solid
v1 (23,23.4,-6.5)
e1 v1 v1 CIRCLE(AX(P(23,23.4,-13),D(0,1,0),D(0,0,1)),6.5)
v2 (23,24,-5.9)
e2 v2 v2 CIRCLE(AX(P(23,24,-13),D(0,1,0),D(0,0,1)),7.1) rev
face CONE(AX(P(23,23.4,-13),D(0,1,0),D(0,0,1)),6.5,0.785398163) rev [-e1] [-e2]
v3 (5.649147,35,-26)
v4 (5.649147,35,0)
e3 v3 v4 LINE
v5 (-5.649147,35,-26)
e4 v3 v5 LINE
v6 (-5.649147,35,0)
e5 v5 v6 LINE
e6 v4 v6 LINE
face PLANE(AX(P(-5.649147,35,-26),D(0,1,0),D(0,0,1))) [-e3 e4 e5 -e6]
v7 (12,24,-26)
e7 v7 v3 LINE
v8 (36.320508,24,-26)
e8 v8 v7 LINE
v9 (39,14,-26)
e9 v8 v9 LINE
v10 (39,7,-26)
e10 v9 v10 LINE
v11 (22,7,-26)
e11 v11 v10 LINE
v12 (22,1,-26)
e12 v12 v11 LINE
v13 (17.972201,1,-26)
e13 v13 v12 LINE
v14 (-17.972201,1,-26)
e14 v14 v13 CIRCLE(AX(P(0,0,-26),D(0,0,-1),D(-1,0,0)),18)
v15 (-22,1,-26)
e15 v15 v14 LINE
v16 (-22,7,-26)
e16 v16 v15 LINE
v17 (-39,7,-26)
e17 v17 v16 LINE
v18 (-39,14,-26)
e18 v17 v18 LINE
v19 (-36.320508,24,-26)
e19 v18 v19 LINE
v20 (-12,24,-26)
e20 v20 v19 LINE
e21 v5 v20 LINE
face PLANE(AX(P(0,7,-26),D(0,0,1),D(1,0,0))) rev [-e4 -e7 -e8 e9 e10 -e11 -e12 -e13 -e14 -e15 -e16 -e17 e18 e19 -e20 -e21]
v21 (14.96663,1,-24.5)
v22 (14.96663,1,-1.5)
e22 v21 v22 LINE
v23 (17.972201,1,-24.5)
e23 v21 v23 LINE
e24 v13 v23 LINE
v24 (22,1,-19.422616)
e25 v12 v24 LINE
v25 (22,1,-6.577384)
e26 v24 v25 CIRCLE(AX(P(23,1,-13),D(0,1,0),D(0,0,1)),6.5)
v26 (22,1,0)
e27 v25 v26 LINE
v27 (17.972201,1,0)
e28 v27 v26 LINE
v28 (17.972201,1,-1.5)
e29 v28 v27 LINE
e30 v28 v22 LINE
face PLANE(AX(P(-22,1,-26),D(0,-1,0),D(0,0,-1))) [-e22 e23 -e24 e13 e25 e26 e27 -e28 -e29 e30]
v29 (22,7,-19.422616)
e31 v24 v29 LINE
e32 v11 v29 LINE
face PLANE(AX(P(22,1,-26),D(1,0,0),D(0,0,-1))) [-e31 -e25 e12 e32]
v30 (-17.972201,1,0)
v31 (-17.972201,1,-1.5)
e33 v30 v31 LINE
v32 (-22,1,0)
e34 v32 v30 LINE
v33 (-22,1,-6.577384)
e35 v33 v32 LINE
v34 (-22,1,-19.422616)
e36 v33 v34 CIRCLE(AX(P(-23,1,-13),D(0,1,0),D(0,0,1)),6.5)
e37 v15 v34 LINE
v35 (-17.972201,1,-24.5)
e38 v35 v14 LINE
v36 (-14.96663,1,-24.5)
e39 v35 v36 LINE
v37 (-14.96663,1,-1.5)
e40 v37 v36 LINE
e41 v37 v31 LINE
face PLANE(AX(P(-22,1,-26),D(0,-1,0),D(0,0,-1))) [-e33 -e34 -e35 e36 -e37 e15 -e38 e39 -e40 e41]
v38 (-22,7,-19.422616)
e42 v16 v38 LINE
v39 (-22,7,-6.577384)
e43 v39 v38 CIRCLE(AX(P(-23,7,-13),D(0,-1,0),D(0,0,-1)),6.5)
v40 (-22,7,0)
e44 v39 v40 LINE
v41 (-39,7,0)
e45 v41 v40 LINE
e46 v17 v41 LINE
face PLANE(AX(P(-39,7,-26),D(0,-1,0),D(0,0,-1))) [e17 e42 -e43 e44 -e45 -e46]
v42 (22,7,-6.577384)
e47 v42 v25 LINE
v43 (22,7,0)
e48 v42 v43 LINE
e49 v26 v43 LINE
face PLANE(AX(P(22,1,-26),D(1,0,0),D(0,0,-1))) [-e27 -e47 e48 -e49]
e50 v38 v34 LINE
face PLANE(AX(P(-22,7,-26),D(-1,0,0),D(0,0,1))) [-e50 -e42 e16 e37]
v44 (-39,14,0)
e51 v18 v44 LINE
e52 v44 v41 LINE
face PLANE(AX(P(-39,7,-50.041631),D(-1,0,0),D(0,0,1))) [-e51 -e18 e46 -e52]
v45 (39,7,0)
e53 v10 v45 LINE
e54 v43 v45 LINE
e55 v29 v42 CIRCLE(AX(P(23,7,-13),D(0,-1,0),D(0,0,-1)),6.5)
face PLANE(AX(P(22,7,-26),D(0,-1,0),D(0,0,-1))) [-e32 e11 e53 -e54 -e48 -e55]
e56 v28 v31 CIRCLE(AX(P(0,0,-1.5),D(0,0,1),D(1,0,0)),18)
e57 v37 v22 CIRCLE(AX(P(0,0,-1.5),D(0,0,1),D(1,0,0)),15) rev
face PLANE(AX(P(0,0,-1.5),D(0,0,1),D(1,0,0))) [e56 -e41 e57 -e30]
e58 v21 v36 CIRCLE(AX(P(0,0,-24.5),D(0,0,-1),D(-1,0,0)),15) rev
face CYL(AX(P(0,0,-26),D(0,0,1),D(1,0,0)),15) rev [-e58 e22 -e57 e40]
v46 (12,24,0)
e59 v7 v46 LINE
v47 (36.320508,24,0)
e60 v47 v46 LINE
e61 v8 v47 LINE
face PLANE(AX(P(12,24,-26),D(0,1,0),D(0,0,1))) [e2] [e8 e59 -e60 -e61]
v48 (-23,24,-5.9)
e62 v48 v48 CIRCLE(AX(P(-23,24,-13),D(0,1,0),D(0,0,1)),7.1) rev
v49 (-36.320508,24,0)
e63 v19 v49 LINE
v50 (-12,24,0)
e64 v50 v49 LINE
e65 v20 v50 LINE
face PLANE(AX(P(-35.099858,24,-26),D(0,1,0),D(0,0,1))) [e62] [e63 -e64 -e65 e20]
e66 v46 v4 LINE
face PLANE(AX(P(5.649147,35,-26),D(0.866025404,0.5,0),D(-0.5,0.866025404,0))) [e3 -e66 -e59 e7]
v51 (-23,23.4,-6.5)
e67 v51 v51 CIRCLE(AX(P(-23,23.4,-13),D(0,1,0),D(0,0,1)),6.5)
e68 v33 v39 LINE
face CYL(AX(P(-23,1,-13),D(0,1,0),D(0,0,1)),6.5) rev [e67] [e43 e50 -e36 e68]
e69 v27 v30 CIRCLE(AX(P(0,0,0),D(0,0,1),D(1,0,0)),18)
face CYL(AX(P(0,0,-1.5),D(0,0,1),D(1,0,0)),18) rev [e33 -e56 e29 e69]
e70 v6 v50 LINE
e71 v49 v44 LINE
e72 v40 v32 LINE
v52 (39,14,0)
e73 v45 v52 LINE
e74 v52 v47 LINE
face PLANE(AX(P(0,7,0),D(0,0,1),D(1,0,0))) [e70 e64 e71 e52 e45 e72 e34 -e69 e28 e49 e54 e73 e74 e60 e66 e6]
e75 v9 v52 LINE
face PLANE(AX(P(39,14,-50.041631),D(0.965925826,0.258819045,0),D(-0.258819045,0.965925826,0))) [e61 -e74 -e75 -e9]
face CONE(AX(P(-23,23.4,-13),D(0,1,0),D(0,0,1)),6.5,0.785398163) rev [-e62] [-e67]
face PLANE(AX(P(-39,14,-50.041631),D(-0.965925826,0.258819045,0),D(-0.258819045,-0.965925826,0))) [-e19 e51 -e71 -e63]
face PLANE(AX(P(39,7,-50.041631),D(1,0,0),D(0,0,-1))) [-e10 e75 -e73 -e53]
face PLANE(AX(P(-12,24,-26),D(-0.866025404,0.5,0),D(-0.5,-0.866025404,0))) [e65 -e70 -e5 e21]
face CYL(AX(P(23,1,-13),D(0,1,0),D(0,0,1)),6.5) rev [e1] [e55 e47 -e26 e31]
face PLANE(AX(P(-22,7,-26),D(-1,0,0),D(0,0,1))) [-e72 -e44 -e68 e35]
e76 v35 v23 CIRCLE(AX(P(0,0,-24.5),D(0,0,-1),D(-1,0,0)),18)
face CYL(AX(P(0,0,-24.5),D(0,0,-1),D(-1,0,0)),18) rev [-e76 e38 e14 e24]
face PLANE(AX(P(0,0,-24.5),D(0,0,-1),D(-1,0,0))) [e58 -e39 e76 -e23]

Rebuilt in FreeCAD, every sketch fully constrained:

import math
import FreeCAD as App
import Part
import Sketcher
from FreeCAD import Vector
Q = App.Units.Quantity


def edges_at(feature, points):
    """Names of the edges that pass closest to the given points."""
    edges = feature.Shape.Edges
    near = lambda p: min(range(len(edges)), key=lambda i: edges[i].distToShape(Part.Vertex(*p))[0])
    return sorted({f"Edge{near(p) + 1}" for p in points})

doc = App.newDocument("Part")
params = doc.addObject("Spreadsheet::Sheet", "Params")
for row, (alias, value) in enumerate([
    ("sketch1_radius", "39 mm"),
    ("sketch1_width", "17 mm"),
    ("sketch1_height", "6 mm"),
    ("pad1_length", "26 mm"),
    ("sketch2_diameter", "30 mm"),
    ("sketch3_diameter", "36 mm"),
    ("pocket2_length", "1.5 mm"),
    ("sketch4_diameter", "36 mm"),
    ("pocket3_length", "1.5 mm"),
    ("sketch5_width", "17 mm"),
    ("sketch5_height", "7 mm"),
    ("pad2_length", "26 mm"),
    ("sketch6_diameter", "13 mm"),
    ("chamfer_size", "0.6 mm"),
], start=1):
    params.set(f"A{row}", alias)
    params.set(f"B{row}", "=" + value)
    params.setAlias(f"B{row}", alias)

body = doc.addObject("PartDesign::Body", "Body")

# Sketch on XY plane
sketch1 = body.newObject("Sketcher::SketchObject", "Sketch")
sketch1.AttachmentSupport = (doc.getObject("XY_Plane"), [""])
sketch1.MapMode = "FlatFace"
sketch1.addGeometry(Part.LineSegment(Vector(-12, 24, 0), Vector(-35.099858, 24, 0)), False)
sketch1.addGeometry(Part.ArcOfCircle(Part.Circle(Vector(0, 7, 0), Vector(0, 0, 1), 39), math.radians(154.157587), math.radians(180)), False)
sketch1.addGeometry(Part.LineSegment(Vector(-39, 7, 0), Vector(-22, 7, 0)), False)
sketch1.addGeometry(Part.LineSegment(Vector(-22, 7, 0), Vector(-22, 1, 0)), False)
sketch1.addGeometry(Part.LineSegment(Vector(-22, 1, 0), Vector(22, 1, 0)), False)
sketch1.addGeometry(Part.LineSegment(Vector(22, 1, 0), Vector(22, 7, 0)), False)
sketch1.addGeometry(Part.LineSegment(Vector(22, 7, 0), Vector(39, 7, 0)), False)
sketch1.addGeometry(Part.ArcOfCircle(Part.Circle(Vector(0, 7, 0), Vector(0, 0, 1), 39), math.radians(0), math.radians(25.842413)), False)
sketch1.addGeometry(Part.LineSegment(Vector(35.099858, 24, 0), Vector(12, 24, 0)), False)
sketch1.addGeometry(Part.LineSegment(Vector(12, 24, 0), Vector(5.649147, 35, 0)), False)
sketch1.addGeometry(Part.LineSegment(Vector(5.649147, 35, 0), Vector(-5.649147, 35, 0)), False)
sketch1.addGeometry(Part.LineSegment(Vector(-5.649147, 35, 0), Vector(-12, 24, 0)), False)
sketch1.addConstraint(Sketcher.Constraint("Coincident", 0, 2, 1, 1))
sketch1.addConstraint(Sketcher.Constraint("Coincident", 1, 2, 2, 1))
sketch1.addConstraint(Sketcher.Constraint("Coincident", 2, 2, 3, 1))
sketch1.addConstraint(Sketcher.Constraint("Coincident", 3, 2, 4, 1))
sketch1.addConstraint(Sketcher.Constraint("Coincident", 4, 2, 5, 1))
sketch1.addConstraint(Sketcher.Constraint("Coincident", 5, 2, 6, 1))
sketch1.addConstraint(Sketcher.Constraint("Coincident", 6, 2, 7, 1))
sketch1.addConstraint(Sketcher.Constraint("Coincident", 7, 2, 8, 1))
sketch1.addConstraint(Sketcher.Constraint("Coincident", 8, 2, 9, 1))
sketch1.addConstraint(Sketcher.Constraint("Coincident", 9, 2, 10, 1))
sketch1.addConstraint(Sketcher.Constraint("Coincident", 10, 2, 11, 1))
sketch1.addConstraint(Sketcher.Constraint("Coincident", 11, 2, 0, 1))
sketch1.addConstraint(Sketcher.Constraint("Horizontal", 0))
sketch1.addConstraint(Sketcher.Constraint("Horizontal", 2))
sketch1.addConstraint(Sketcher.Constraint("Vertical", 3))
sketch1.addConstraint(Sketcher.Constraint("Horizontal", 4))
sketch1.addConstraint(Sketcher.Constraint("Vertical", 5))
sketch1.addConstraint(Sketcher.Constraint("Horizontal", 6))
sketch1.addConstraint(Sketcher.Constraint("Horizontal", 8))
sketch1.addConstraint(Sketcher.Constraint("Horizontal", 10))
sketch1.addConstraint(Sketcher.Constraint("Coincident", 7, 3, 1, 3))
sketch1.addConstraint(Sketcher.Constraint("Equal", 1, 7))
sketch1.addConstraint(Sketcher.Constraint("Symmetric", 2, 2, 5, 2, -2))
sketch1.addConstraint(Sketcher.Constraint("Symmetric", 0, 2, 7, 2, -2))
sketch1.addConstraint(Sketcher.Constraint("Horizontal", 7, 3, 1, 2))
sketch1.addConstraint(Sketcher.Constraint("Equal", 0, 8))
sketch1.addConstraint(Sketcher.Constraint("Equal", 9, 11))
sketch1.addConstraint(Sketcher.Constraint("Radius", 1, Q("39 mm")))
sketch1.addConstraint(Sketcher.Constraint("DistanceX", 2, 1, 2, 2, Q("17 mm")))
sketch1.addConstraint(Sketcher.Constraint("DistanceY", 3, 2, 3, 1, Q("6 mm")))
sketch1.addConstraint(Sketcher.Constraint("Angle", 9, Q("120 deg")))
sketch1.addConstraint(Sketcher.Constraint("DistanceY", -1, 1, 1, 3, Q("7 mm")))
sketch1.addConstraint(Sketcher.Constraint("DistanceY", -1, 1, 0, 2, Q("24 mm")))
sketch1.addConstraint(Sketcher.Constraint("DistanceX", -1, 1, 8, 2, Q("12 mm")))
sketch1.addConstraint(Sketcher.Constraint("DistanceY", -1, 1, 9, 2, Q("35 mm")))
sketch1.setExpression("Constraints[27]", "Params.sketch1_radius")
sketch1.setExpression("Constraints[28]", "Params.sketch1_width")
sketch1.setExpression("Constraints[29]", "Params.sketch1_height")
pad1 = body.newObject("PartDesign::Pad", "Pad")
pad1.Profile = sketch1
pad1.setExpression("Length", "Params.pad1_length")
pad1.Reversed = True

# Sketch on XY plane
sketch2 = body.newObject("Sketcher::SketchObject", "Sketch001")
sketch2.AttachmentSupport = (doc.getObject("XY_Plane"), [""])
sketch2.MapMode = "FlatFace"
sketch2.addGeometry(Part.Circle(Vector(0, 0, 0), Vector(0, 0, 1), 15), False)
sketch2.addConstraint(Sketcher.Constraint("Coincident", 0, 3, -1, 1))
sketch2.addConstraint(Sketcher.Constraint("Diameter", 0, Q("30 mm")))
sketch2.setExpression("Constraints[1]", "Params.sketch2_diameter")
pocket1 = body.newObject("PartDesign::Pocket", "Pocket")
pocket1.Profile = sketch2
pocket1.Type = "ThroughAll"

# Sketch on XY plane
sketch3 = body.newObject("Sketcher::SketchObject", "Sketch002")
sketch3.AttachmentSupport = (doc.getObject("XY_Plane"), [""])
sketch3.MapMode = "FlatFace"
sketch3.addGeometry(Part.Circle(Vector(0, 0, 0), Vector(0, 0, 1), 18), False)
sketch3.addConstraint(Sketcher.Constraint("Coincident", 0, 3, -1, 1))
sketch3.addConstraint(Sketcher.Constraint("Diameter", 0, Q("36 mm")))
sketch3.setExpression("Constraints[1]", "Params.sketch3_diameter")
pocket2 = body.newObject("PartDesign::Pocket", "Pocket001")
pocket2.Profile = sketch3
pocket2.setExpression("Length", "Params.pocket2_length")

# Sketch on XY plane
sketch4 = body.newObject("Sketcher::SketchObject", "Sketch003")
sketch4.AttachmentSupport = (doc.getObject("XY_Plane"), [""])
sketch4.MapMode = "FlatFace"
sketch4.AttachmentOffset = App.Placement(Vector(0, 0, -24.5), App.Rotation())
sketch4.addGeometry(Part.Circle(Vector(0, 0, 0), Vector(0, 0, 1), 18), False)
sketch4.addConstraint(Sketcher.Constraint("Coincident", 0, 3, -1, 1))
sketch4.addConstraint(Sketcher.Constraint("Diameter", 0, Q("36 mm")))
sketch4.setExpression("Constraints[1]", "Params.sketch4_diameter")
pocket3 = body.newObject("PartDesign::Pocket", "Pocket002")
pocket3.Profile = sketch4
pocket3.setExpression("Length", "Params.pocket3_length")

# Sketch on XY plane
sketch5 = body.newObject("Sketcher::SketchObject", "Sketch004")
sketch5.AttachmentSupport = (doc.getObject("XY_Plane"), [""])
sketch5.MapMode = "FlatFace"
sketch5.addGeometry(Part.LineSegment(Vector(-39, 14, 0), Vector(-39, 7, 0)), False)
sketch5.addGeometry(Part.LineSegment(Vector(-39, 7, 0), Vector(-22, 7, 0)), False)
sketch5.addGeometry(Part.LineSegment(Vector(-22, 7, 0), Vector(-22, 24, 0)), False)
sketch5.addGeometry(Part.LineSegment(Vector(-22, 24, 0), Vector(-36.320508, 24, 0)), False)
sketch5.addGeometry(Part.LineSegment(Vector(-36.320508, 24, 0), Vector(-39, 14, 0)), False)
sketch5.addGeometry(Part.LineSegment(Vector(39, 7, 0), Vector(39, 14, 0)), False)
sketch5.addGeometry(Part.LineSegment(Vector(39, 14, 0), Vector(36.320508, 24, 0)), False)
sketch5.addGeometry(Part.LineSegment(Vector(36.320508, 24, 0), Vector(22, 24, 0)), False)
sketch5.addGeometry(Part.LineSegment(Vector(22, 24, 0), Vector(22, 7, 0)), False)
sketch5.addGeometry(Part.LineSegment(Vector(22, 7, 0), Vector(39, 7, 0)), False)
sketch5.addConstraint(Sketcher.Constraint("Coincident", 0, 2, 1, 1))
sketch5.addConstraint(Sketcher.Constraint("Coincident", 1, 2, 2, 1))
sketch5.addConstraint(Sketcher.Constraint("Coincident", 2, 2, 3, 1))
sketch5.addConstraint(Sketcher.Constraint("Coincident", 3, 2, 4, 1))
sketch5.addConstraint(Sketcher.Constraint("Coincident", 4, 2, 0, 1))
sketch5.addConstraint(Sketcher.Constraint("Coincident", 5, 2, 6, 1))
sketch5.addConstraint(Sketcher.Constraint("Coincident", 6, 2, 7, 1))
sketch5.addConstraint(Sketcher.Constraint("Coincident", 7, 2, 8, 1))
sketch5.addConstraint(Sketcher.Constraint("Coincident", 8, 2, 9, 1))
sketch5.addConstraint(Sketcher.Constraint("Coincident", 9, 2, 5, 1))
sketch5.addConstraint(Sketcher.Constraint("Vertical", 0))
sketch5.addConstraint(Sketcher.Constraint("Horizontal", 1))
sketch5.addConstraint(Sketcher.Constraint("Vertical", 2))
sketch5.addConstraint(Sketcher.Constraint("Horizontal", 3))
sketch5.addConstraint(Sketcher.Constraint("Vertical", 5))
sketch5.addConstraint(Sketcher.Constraint("Horizontal", 7))
sketch5.addConstraint(Sketcher.Constraint("Vertical", 8))
sketch5.addConstraint(Sketcher.Constraint("Horizontal", 9))
sketch5.addConstraint(Sketcher.Constraint("Symmetric", 4, 2, 5, 2, -2))
sketch5.addConstraint(Sketcher.Constraint("Symmetric", 3, 2, 6, 2, -2))
sketch5.addConstraint(Sketcher.Constraint("Symmetric", 1, 2, 8, 2, -2))
sketch5.addConstraint(Sketcher.Constraint("Equal", 9, 2))
sketch5.addConstraint(Sketcher.Constraint("DistanceX", 1, 1, 1, 2, Q("17 mm")))
sketch5.addConstraint(Sketcher.Constraint("DistanceY", 0, 2, 0, 1, Q("7 mm")))
sketch5.addConstraint(Sketcher.Constraint("Angle", 4, Q("-105 deg")))
sketch5.addConstraint(Sketcher.Constraint("DistanceX", 0, 2, -1, 1, Q("39 mm")))
sketch5.addConstraint(Sketcher.Constraint("DistanceY", -1, 1, 0, 2, Q("7 mm")))
sketch5.setExpression("Constraints[22]", "Params.sketch5_width")
sketch5.setExpression("Constraints[23]", "Params.sketch5_height")
pad2 = body.newObject("PartDesign::Pad", "Pad001")
pad2.Profile = sketch5
pad2.setExpression("Length", "Params.pad2_length")
pad2.Reversed = True

# Sketch on XZ plane
sketch6 = body.newObject("Sketcher::SketchObject", "Sketch005")
sketch6.AttachmentSupport = (doc.getObject("XZ_Plane"), [""])
sketch6.MapMode = "FlatFace"
sketch6.AttachmentOffset = App.Placement(Vector(0, 0, -24), App.Rotation())
sketch6.addGeometry(Part.Circle(Vector(-23, -13, 0), Vector(0, 0, 1), 6.5), False)
sketch6.addGeometry(Part.Circle(Vector(23, -13, 0), Vector(0, 0, 1), 6.5), False)
sketch6.addConstraint(Sketcher.Constraint("Equal", 0, 1))
sketch6.addConstraint(Sketcher.Constraint("Symmetric", 0, 3, 1, 3, -2))
sketch6.addConstraint(Sketcher.Constraint("Diameter", 0, Q("13 mm")))
sketch6.addConstraint(Sketcher.Constraint("DistanceX", 0, 3, -1, 1, Q("23 mm")))
sketch6.addConstraint(Sketcher.Constraint("DistanceY", 0, 3, -1, 1, Q("13 mm")))
sketch6.setExpression("Constraints[2]", "Params.sketch6_diameter")
pocket4 = body.newObject("PartDesign::Pocket", "Pocket003")
pocket4.Profile = sketch6
pocket4.Type = "ThroughAll"
pocket4.Reversed = True
doc.recompute()

chamfer = body.newObject("PartDesign::Chamfer", "Chamfer")
chamfer.Base = (pocket4, edges_at(pocket4, [(-23, 24, -19.5), (23, 24, -19.5)]))
chamfer.setExpression("Size", "Params.chamfer_size")

doc.recompute()
